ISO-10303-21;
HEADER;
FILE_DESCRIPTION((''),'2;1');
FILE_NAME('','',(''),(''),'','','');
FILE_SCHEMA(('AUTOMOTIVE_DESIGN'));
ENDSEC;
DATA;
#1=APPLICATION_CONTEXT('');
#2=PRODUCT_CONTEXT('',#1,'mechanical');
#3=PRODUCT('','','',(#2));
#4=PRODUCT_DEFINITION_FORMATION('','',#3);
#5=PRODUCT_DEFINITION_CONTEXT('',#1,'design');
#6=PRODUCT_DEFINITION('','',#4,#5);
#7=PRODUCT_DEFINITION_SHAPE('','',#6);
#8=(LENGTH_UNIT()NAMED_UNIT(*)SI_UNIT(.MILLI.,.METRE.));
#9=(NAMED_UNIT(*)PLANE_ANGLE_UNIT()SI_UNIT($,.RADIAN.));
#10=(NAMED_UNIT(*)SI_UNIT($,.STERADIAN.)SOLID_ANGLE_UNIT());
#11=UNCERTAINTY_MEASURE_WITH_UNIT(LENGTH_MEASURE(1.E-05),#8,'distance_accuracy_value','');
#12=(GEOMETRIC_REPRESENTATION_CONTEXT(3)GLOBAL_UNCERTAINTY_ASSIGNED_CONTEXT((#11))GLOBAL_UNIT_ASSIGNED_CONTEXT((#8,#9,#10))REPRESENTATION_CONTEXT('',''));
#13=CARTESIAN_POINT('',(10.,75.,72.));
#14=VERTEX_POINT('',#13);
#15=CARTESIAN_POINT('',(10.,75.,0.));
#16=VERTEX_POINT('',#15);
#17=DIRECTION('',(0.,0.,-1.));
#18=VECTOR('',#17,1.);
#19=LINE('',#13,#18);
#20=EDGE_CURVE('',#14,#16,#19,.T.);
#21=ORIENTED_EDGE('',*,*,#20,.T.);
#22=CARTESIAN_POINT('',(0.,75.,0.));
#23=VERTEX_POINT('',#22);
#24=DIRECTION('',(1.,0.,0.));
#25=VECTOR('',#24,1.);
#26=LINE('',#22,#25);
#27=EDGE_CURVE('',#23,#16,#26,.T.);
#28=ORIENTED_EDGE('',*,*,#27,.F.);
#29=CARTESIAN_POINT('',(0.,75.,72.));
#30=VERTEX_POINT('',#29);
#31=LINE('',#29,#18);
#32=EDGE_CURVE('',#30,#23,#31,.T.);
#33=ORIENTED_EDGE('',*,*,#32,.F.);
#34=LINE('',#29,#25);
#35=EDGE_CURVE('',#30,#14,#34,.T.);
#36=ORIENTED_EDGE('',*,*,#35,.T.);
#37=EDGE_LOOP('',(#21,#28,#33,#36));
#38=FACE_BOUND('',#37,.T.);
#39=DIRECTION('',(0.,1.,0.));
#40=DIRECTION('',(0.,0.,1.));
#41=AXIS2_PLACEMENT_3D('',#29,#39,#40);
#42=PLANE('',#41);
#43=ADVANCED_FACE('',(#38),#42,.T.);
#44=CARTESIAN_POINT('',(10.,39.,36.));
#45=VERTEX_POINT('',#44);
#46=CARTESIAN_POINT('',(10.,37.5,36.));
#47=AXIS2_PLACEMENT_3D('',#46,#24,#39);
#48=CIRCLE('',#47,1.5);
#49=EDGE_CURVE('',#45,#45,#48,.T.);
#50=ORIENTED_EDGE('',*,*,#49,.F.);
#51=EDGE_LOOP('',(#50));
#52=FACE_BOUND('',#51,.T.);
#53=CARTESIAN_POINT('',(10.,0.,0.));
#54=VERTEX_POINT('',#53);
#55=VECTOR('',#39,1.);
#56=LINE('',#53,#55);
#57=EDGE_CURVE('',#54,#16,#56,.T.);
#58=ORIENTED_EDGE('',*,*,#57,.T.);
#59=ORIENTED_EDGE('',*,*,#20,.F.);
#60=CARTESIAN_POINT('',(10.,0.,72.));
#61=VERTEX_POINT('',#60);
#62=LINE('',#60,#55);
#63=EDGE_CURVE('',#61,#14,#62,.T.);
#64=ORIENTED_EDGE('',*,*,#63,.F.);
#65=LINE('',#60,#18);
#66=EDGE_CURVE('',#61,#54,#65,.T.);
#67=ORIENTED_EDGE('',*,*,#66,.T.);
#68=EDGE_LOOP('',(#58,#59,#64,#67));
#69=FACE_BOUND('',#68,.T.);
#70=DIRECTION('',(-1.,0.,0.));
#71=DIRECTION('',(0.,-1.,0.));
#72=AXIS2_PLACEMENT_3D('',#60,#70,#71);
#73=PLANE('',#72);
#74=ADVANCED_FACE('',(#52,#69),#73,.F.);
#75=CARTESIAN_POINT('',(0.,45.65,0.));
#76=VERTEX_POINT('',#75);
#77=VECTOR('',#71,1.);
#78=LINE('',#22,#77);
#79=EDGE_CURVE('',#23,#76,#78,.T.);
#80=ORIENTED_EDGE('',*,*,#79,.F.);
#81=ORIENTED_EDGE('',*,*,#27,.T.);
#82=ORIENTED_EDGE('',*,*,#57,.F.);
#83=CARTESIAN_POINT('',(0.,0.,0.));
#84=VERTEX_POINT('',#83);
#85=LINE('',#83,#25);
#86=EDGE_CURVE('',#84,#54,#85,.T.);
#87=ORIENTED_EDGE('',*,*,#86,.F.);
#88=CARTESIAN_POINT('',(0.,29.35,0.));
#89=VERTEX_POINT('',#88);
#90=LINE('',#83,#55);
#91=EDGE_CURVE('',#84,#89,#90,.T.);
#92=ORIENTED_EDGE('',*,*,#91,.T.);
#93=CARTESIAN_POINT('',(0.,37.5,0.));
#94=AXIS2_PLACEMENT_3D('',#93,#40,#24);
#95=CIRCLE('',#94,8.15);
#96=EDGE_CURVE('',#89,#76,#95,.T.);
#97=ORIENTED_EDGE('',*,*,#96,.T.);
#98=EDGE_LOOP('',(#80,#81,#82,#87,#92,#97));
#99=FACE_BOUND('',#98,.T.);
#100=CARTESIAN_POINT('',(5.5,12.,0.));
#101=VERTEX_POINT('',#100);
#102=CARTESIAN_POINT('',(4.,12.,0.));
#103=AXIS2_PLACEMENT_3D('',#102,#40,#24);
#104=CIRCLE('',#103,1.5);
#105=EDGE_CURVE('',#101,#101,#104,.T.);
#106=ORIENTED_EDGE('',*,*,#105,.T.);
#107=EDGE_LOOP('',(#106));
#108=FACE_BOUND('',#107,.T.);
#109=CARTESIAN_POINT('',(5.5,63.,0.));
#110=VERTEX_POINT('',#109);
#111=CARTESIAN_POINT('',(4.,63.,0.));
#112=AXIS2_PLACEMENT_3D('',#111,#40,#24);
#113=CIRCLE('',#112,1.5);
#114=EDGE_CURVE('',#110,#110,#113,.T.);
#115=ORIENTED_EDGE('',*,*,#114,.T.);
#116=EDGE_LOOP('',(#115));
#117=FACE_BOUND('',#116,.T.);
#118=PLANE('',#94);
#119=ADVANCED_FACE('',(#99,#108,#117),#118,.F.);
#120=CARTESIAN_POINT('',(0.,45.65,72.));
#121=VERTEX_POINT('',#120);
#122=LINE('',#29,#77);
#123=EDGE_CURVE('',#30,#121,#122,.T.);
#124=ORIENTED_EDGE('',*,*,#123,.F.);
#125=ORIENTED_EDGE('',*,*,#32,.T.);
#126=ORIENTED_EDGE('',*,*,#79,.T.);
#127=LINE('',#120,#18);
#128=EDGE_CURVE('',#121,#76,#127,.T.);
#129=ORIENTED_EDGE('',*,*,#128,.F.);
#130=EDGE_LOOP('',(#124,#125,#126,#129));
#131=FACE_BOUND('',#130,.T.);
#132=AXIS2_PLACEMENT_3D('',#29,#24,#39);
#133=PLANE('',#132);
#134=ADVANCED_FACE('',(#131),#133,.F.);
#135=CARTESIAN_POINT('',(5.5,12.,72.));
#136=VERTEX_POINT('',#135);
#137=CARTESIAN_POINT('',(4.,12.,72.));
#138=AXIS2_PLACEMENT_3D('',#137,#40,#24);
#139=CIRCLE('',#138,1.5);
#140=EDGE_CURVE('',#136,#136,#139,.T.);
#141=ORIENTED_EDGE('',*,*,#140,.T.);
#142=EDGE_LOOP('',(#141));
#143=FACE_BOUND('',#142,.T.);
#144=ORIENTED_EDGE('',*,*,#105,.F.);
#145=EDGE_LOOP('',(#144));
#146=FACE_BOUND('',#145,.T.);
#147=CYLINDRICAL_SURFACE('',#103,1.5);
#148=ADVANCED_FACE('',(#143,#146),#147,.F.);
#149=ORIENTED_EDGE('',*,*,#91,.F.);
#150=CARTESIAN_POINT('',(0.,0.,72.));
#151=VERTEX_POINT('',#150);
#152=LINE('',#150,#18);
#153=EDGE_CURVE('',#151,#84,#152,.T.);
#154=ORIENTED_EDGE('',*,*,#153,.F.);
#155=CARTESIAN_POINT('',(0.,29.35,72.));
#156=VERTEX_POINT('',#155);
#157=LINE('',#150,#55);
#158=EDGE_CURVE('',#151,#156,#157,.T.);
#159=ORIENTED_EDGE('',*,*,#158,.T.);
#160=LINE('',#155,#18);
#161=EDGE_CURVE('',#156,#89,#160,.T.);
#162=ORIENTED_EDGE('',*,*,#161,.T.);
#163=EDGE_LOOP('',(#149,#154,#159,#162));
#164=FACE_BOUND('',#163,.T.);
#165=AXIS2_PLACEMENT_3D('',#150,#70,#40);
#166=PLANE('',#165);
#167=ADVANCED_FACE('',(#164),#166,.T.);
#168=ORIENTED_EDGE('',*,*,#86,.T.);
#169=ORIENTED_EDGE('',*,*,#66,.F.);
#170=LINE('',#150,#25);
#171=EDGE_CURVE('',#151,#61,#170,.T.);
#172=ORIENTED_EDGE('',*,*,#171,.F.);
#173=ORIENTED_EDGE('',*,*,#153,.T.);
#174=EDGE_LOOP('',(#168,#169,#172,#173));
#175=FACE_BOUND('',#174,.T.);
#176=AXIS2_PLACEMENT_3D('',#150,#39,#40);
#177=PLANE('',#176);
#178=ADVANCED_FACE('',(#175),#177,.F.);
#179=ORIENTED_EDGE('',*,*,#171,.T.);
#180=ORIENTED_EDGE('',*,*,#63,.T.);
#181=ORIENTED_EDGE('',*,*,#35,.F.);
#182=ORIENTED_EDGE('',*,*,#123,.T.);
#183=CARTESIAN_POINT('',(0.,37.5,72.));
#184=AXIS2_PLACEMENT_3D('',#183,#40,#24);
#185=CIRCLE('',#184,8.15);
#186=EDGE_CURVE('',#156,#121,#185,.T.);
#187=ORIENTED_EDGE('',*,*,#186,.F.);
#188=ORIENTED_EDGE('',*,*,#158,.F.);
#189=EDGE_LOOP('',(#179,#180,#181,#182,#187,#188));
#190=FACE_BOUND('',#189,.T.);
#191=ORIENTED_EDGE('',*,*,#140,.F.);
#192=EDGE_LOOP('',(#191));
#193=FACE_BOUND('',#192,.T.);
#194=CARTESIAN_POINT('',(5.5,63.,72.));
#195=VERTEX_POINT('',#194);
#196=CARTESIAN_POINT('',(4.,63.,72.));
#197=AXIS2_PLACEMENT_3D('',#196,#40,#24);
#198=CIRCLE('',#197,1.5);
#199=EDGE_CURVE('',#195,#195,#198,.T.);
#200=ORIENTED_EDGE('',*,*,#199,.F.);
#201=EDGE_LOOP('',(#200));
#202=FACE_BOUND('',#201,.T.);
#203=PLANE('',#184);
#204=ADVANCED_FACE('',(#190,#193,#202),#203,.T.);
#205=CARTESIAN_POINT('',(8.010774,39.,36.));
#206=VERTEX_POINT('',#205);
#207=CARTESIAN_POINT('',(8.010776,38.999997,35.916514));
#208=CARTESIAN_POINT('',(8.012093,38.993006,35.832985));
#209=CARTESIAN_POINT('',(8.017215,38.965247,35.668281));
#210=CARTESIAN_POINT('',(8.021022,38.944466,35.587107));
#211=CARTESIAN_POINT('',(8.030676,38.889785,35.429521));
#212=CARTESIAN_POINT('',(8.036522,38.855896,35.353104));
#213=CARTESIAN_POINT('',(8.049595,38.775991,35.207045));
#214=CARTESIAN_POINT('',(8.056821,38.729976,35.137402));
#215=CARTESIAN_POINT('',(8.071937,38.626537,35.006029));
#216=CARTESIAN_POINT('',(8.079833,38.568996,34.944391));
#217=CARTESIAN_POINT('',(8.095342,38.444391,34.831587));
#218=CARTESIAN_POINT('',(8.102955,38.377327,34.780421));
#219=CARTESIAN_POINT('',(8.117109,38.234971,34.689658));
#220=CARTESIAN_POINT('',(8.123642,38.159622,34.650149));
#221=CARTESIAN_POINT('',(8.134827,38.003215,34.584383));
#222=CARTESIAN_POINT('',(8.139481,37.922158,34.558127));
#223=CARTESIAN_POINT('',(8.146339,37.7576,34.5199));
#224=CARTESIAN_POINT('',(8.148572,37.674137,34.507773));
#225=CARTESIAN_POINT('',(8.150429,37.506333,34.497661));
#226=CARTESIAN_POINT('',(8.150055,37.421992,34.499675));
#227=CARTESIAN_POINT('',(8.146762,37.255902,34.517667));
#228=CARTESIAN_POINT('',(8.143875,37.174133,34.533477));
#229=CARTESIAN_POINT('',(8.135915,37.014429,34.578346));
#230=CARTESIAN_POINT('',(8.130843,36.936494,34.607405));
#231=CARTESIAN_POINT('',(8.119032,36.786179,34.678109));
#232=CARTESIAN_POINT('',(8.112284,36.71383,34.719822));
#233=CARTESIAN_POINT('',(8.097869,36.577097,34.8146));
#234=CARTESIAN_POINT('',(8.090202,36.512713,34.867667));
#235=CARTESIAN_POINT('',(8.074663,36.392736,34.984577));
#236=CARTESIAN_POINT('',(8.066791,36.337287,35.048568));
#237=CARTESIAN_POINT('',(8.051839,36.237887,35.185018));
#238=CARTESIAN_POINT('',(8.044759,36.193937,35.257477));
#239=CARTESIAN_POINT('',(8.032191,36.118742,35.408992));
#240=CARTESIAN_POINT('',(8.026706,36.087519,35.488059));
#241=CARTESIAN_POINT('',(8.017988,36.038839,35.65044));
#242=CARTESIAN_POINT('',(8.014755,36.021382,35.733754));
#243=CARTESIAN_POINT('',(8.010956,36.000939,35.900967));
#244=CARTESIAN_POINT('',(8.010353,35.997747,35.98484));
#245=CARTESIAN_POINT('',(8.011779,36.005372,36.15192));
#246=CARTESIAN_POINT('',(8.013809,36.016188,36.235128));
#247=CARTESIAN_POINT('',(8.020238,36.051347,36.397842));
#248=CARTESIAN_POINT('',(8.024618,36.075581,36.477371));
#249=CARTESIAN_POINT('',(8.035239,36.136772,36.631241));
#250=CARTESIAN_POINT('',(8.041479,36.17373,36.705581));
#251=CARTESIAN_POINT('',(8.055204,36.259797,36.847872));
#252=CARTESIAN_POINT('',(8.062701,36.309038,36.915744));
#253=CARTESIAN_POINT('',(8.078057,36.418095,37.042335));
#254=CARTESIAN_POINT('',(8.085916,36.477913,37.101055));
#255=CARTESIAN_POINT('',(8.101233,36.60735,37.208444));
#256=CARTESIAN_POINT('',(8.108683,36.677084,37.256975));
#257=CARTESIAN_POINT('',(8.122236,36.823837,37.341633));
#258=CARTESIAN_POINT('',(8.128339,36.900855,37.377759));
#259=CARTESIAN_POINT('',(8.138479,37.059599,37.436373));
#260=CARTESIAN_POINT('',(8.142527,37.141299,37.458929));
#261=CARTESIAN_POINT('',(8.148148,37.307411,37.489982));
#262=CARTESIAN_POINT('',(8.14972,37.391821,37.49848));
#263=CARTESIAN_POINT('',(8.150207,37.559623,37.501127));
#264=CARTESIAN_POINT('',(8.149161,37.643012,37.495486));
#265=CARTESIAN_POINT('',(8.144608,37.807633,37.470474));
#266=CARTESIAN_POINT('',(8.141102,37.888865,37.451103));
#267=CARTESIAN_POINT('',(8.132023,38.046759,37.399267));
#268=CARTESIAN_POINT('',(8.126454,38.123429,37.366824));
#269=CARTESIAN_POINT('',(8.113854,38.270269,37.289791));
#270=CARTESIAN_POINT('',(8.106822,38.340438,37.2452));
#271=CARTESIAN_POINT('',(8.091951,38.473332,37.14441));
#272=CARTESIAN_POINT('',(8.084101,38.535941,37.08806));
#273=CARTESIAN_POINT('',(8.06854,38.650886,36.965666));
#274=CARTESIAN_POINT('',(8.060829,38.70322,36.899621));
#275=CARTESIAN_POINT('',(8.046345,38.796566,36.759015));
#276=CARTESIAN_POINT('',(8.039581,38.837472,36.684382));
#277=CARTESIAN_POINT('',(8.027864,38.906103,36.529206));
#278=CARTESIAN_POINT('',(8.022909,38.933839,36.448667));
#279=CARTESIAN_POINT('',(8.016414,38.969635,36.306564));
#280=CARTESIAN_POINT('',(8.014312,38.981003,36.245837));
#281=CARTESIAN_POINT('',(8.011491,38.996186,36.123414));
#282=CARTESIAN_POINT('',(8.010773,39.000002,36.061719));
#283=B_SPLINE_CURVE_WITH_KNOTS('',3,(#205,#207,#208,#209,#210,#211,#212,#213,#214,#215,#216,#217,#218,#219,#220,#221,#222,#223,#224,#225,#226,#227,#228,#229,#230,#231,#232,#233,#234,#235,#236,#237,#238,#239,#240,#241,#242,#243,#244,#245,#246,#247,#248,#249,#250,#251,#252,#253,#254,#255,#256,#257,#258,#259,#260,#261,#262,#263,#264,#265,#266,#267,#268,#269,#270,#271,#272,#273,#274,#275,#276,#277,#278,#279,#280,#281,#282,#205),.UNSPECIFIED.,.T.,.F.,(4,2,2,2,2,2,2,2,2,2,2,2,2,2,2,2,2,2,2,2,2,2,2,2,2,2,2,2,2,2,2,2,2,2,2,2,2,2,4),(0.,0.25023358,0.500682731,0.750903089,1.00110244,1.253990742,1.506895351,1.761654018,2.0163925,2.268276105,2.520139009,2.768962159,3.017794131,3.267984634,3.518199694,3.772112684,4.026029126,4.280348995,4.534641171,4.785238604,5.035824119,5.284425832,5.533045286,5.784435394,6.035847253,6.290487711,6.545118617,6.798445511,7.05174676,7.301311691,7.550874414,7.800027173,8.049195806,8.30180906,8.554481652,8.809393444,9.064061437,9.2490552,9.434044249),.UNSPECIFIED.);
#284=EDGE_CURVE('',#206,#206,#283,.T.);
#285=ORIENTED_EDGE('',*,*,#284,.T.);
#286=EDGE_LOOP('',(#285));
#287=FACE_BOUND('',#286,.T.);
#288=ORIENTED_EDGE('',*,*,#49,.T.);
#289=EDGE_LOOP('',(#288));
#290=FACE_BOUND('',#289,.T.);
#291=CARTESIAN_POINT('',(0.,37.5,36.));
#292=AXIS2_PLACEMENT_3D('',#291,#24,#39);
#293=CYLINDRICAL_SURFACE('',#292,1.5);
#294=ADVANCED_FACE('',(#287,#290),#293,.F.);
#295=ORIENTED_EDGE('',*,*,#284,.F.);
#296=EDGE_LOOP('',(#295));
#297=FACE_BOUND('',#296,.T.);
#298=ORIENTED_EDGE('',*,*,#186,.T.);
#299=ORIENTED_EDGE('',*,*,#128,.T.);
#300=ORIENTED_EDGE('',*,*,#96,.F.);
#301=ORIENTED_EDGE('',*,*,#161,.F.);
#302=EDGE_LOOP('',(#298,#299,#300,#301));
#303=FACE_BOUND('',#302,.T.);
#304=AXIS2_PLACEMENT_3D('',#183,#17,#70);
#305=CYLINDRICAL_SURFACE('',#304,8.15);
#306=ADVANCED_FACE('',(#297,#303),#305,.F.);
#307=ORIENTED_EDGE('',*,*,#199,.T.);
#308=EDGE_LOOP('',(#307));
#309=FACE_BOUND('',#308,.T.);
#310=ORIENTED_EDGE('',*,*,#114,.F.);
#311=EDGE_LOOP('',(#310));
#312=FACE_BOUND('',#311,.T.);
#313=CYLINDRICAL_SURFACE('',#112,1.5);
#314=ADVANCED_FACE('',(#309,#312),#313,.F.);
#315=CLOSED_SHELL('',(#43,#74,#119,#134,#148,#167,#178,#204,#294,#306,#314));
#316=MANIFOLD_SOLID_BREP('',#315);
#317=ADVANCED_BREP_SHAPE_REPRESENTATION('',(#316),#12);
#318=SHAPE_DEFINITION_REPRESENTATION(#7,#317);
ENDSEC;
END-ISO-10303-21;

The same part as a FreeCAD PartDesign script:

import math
import FreeCAD as App
import Part
import Sketcher

V = App.Vector

doc = App.newDocument("Part")
body = doc.addObject("PartDesign::Body", "Body")

# Sketch on XY plane
sketch1 = body.newObject("Sketcher::SketchObject", "Sketch")
sketch1.AttachmentSupport = (doc.getObject("XY_Plane"), [""])
sketch1.MapMode = "FlatFace"
sketch1.addGeometry([
    Part.LineSegment(V(0, 0, 0), V(10, 0, 0)),  # 0
    Part.LineSegment(V(10, 0, 0), V(10, 75, 0)),  # 1
    Part.LineSegment(V(10, 75, 0), V(0, 75, 0)),  # 2
    Part.LineSegment(V(0, 75, 0), V(0, 46, 0)),  # 3
    Part.ArcOfCircle(Part.Circle(V(0, 38, 0), V(0, 0, 1), 8), math.radians(-90), math.radians(90)),  # 4
    Part.LineSegment(V(0, 29, 0), V(0, 0, 0)),  # 5
], False)
sketch1.addConstraint([
    Sketcher.Constraint("Coincident", 0, 2, 1, 1),
    Sketcher.Constraint("Coincident", 1, 2, 2, 1),
    Sketcher.Constraint("Coincident", 2, 2, 3, 1),
    Sketcher.Constraint("Coincident", 3, 2, 4, 2),
    Sketcher.Constraint("Coincident", 4, 1, 5, 1),
    Sketcher.Constraint("Coincident", 5, 2, 0, 1),
    Sketcher.Constraint("Horizontal", 0),
    Sketcher.Constraint("Vertical", 1),
    Sketcher.Constraint("Horizontal", 2),
    Sketcher.Constraint("Vertical", 3),
    Sketcher.Constraint("Vertical", 5),
    Sketcher.Constraint("Coincident", 5, 2, -1, 1),
    Sketcher.Constraint("PointOnObject", 4, 3, -2),
    Sketcher.Constraint("PointOnObject", 2, 2, -2),
    Sketcher.Constraint("Equal", 3, 5),
    Sketcher.Constraint("DistanceX", 0, 1, 0, 2, 10.0),
    Sketcher.Constraint("DistanceY", 1, 1, 1, 2, 75.0),
    Sketcher.Constraint("Radius", 4, 8.15),
])
pad1 = body.newObject("PartDesign::Pad", "Pad")
pad1.Profile = sketch1
pad1.Length = 72

# Sketch on XY plane
sketch2 = body.newObject("Sketcher::SketchObject", "Sketch001")
sketch2.AttachmentSupport = (doc.getObject("XY_Plane"), [""])
sketch2.MapMode = "FlatFace"
sketch2.AttachmentOffset = App.Placement(V(0, 0, 72), App.Rotation())
sketch2.addGeometry([
    Part.Circle(V(4, 63, 0), V(0, 0, 1), 1.5),
    Part.Circle(V(4, 12, 0), V(0, 0, 1), 1.5),
], False)
sketch2.addConstraint([
    Sketcher.Constraint("Equal", 0, 1),
    Sketcher.Constraint("Vertical", 0, 3, 1, 3),
    Sketcher.Constraint("Diameter", 0, 3.0),
    Sketcher.Constraint("DistanceX", -1, 1, 0, 3, 4.0),
    Sketcher.Constraint("DistanceY", -1, 1, 0, 3, 63.0),
    Sketcher.Constraint("DistanceY", -1, 1, 1, 3, 12.0),
])
pocket1 = body.newObject("PartDesign::Pocket", "Pocket")
pocket1.Profile = sketch2
pocket1.Type = "ThroughAll"

# Sketch on YZ plane
sketch3 = body.newObject("Sketcher::SketchObject", "Sketch002")
sketch3.AttachmentSupport = (doc.getObject("YZ_Plane"), [""])
sketch3.MapMode = "FlatFace"
sketch3.AttachmentOffset = App.Placement(V(0, 0, 10), App.Rotation())
sketch3.addGeometry(Part.Circle(V(37.5, 36, 0), V(0, 0, 1), 1.5), False)
sketch3.addConstraint([
    Sketcher.Constraint("Diameter", 0, 3.0),
    Sketcher.Constraint("DistanceY", -1, 1, 0, 3, 36.0),
    Sketcher.Constraint("DistanceX", -1, 1, 0, 3, 37.5),
])
pocket2 = body.newObject("PartDesign::Pocket", "Pocket001")
pocket2.Profile = sketch3
pocket2.Type = "ThroughAll"

doc.recompute()
